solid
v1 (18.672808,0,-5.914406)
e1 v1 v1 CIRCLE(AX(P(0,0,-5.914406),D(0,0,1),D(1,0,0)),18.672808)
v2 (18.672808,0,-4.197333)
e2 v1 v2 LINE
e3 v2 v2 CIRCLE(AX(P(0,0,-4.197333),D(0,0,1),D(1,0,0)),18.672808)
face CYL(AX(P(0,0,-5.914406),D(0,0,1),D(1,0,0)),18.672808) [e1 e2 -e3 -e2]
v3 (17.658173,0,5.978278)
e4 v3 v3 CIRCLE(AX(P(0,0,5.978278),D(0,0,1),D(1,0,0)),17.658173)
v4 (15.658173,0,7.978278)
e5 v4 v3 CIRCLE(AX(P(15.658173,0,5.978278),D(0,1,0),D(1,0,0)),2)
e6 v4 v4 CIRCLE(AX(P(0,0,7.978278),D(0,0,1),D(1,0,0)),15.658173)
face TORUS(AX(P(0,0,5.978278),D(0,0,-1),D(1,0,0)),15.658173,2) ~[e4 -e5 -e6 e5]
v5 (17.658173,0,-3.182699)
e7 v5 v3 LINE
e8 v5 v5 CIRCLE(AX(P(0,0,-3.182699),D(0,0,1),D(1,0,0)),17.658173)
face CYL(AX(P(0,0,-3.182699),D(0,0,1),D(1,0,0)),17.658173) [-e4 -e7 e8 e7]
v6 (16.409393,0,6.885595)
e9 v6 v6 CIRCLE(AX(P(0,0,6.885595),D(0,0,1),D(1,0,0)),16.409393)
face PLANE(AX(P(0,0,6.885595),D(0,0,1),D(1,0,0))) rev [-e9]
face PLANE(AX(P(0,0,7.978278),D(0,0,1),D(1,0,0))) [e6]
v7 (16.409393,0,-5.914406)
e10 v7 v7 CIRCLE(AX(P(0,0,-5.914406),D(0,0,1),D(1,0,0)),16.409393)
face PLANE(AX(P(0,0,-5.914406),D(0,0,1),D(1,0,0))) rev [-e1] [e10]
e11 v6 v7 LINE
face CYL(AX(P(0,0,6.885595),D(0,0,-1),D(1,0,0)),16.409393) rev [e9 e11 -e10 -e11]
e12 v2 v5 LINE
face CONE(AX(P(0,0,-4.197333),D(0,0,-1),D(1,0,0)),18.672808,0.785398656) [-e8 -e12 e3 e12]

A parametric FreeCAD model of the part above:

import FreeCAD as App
import Part
import Sketcher
from FreeCAD import Vector
Q = App.Units.Quantity


def edges_at(feature, points):
    """Names of the edges that pass closest to the given points."""
    edges = feature.Shape.Edges
    near = lambda p: min(range(len(edges)), key=lambda i: edges[i].distToShape(Part.Vertex(*p))[0])
    return sorted({f"Edge{near(p) + 1}" for p in points})

doc = App.newDocument("Part")
body = doc.addObject("PartDesign::Body", "Body")

# Sketch on XZ plane
sketch1 = doc.addObject("Sketcher::SketchObject", "Sketch")
body.addObject(sketch1)
sketch1.AttachmentSupport = (doc.XZ_Plane, [""])
sketch1.MapMode = "FlatFace"
sketch1.addGeometry(Part.LineSegment(Vector(17.658173, 7.978278, 0), Vector(0, 7.978278, 0)), False)
sketch1.addGeometry(Part.LineSegment(Vector(0, 7.978278, 0), Vector(0, 6.885595, 0)), False)
sketch1.addGeometry(Part.LineSegment(Vector(0, 6.885595, 0), Vector(16.409393, 6.885595, 0)), False)
sketch1.addGeometry(Part.LineSegment(Vector(16.409393, 6.885595, 0), Vector(16.409393, -5.914406, 0)), False)
sketch1.addGeometry(Part.LineSegment(Vector(16.409393, -5.914406, 0), Vector(18.672808, -5.914406, 0)), False)
sketch1.addGeometry(Part.LineSegment(Vector(18.672808, -5.914406, 0), Vector(18.672808, -4.197333, 0)), False)
sketch1.addGeometry(Part.LineSegment(Vector(18.672808, -4.197333, 0), Vector(17.658173, -3.182699, 0)), False)
sketch1.addGeometry(Part.LineSegment(Vector(17.658173, -3.182699, 0), Vector(17.658173, 7.978278, 0)), False)
sketch1.addConstraint(Sketcher.Constraint("Coincident", 0, 2, 1, 1))
sketch1.addConstraint(Sketcher.Constraint("Coincident", 1, 2, 2, 1))
sketch1.addConstraint(Sketcher.Constraint("Coincident", 2, 2, 3, 1))
sketch1.addConstraint(Sketcher.Constraint("Coincident", 3, 2, 4, 1))
sketch1.addConstraint(Sketcher.Constraint("Coincident", 4, 2, 5, 1))
sketch1.addConstraint(Sketcher.Constraint("Coincident", 5, 2, 6, 1))
sketch1.addConstraint(Sketcher.Constraint("Coincident", 6, 2, 7, 1))
sketch1.addConstraint(Sketcher.Constraint("Coincident", 7, 2, 0, 1))
sketch1.addConstraint(Sketcher.Constraint("Horizontal", 0))
sketch1.addConstraint(Sketcher.Constraint("Vertical", 1))
sketch1.addConstraint(Sketcher.Constraint("Horizontal", 2))
sketch1.addConstraint(Sketcher.Constraint("Vertical", 3))
sketch1.addConstraint(Sketcher.Constraint("Horizontal", 4))
sketch1.addConstraint(Sketcher.Constraint("Vertical", 5))
sketch1.addConstraint(Sketcher.Constraint("Vertical", 7))
sketch1.addConstraint(Sketcher.Constraint("PointOnObject", 0, 2, -2))
sketch1.addConstraint(Sketcher.Constraint("DistanceY", 3, 2, 3, 1, Q("12.800001 mm")))
sketch1.addConstraint(Sketcher.Constraint("DistanceY", 6, 2, -1, 1, Q("3.182699 mm")))
sketch1.addConstraint(Sketcher.Constraint("Distance", 6, Q("1.43491 mm")))
sketch1.addConstraint(Sketcher.Constraint("DistanceX", 0, 2, 0, 1, Q("17.658173 mm")))
sketch1.addConstraint(Sketcher.Constraint("DistanceX", 2, 1, 2, 2, Q("16.409393 mm")))
sketch1.addConstraint(Sketcher.Constraint("DistanceX", 4, 1, 4, 2, Q("2.263415 mm")))
sketch1.addConstraint(Sketcher.Constraint("DistanceY", 1, 2, 1, 1, Q("1.092683 mm")))
sketch1.addConstraint(Sketcher.Constraint("DistanceY", 5, 1, 5, 2, Q("1.717073 mm")))
revolution = doc.addObject("PartDesign::Revolution", "Revolution")
body.addObject(revolution)
revolution.Profile = sketch1
revolution.ReferenceAxis = (sketch1, ["V_Axis"])
revolution.Angle = 360
doc.recompute()

fillet = doc.addObject("PartDesign::Fillet", "Fillet")
body.addObject(fillet)
fillet.Base = (revolution, edges_at(revolution, [(-17.658, 0, 7.978)]))
fillet.Radius = 2

doc.recompute()
